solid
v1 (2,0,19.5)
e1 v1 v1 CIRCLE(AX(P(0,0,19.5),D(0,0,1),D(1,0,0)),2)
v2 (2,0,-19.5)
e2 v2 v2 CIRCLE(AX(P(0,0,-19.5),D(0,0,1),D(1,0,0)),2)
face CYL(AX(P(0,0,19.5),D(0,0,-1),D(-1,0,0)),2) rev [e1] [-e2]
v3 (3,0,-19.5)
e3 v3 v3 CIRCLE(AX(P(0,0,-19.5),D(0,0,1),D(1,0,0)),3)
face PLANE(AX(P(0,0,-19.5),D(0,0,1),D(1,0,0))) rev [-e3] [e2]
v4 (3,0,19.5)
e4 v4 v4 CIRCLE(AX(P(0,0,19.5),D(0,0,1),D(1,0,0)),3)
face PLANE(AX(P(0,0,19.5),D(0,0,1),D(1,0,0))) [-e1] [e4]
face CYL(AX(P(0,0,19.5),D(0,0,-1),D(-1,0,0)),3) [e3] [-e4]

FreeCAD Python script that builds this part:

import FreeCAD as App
import Part
import Sketcher
from FreeCAD import Vector

doc = App.newDocument("Part")
body = doc.addObject("PartDesign::Body", "Body")

# Sketch on XY plane
sketch1 = body.newObject("Sketcher::SketchObject", "Sketch")
sketch1.AttachmentSupport = (doc.getObject("XY_Plane"), [""])
sketch1.MapMode = "FlatFace"
sketch1.addGeometry([
    Part.Circle(Vector(0, 0, 0), Vector(0, 0, 1), 3),
    Part.Circle(Vector(0, 0, 0), Vector(0, 0, 1), 2),
], False)
sketch1.addConstraint([
    Sketcher.Constraint("Coincident", 0, 3, -1, 1),
    Sketcher.Constraint("Coincident", 1, 3, -1, 1),
    Sketcher.Constraint("Diameter", 0, 6.0),
    Sketcher.Constraint("Diameter", 1, 4.0),
])
pad1 = body.newObject("PartDesign::Pad", "Pad")
pad1.Profile = sketch1
pad1.Length = 39
pad1.Midplane = True

doc.recompute()
